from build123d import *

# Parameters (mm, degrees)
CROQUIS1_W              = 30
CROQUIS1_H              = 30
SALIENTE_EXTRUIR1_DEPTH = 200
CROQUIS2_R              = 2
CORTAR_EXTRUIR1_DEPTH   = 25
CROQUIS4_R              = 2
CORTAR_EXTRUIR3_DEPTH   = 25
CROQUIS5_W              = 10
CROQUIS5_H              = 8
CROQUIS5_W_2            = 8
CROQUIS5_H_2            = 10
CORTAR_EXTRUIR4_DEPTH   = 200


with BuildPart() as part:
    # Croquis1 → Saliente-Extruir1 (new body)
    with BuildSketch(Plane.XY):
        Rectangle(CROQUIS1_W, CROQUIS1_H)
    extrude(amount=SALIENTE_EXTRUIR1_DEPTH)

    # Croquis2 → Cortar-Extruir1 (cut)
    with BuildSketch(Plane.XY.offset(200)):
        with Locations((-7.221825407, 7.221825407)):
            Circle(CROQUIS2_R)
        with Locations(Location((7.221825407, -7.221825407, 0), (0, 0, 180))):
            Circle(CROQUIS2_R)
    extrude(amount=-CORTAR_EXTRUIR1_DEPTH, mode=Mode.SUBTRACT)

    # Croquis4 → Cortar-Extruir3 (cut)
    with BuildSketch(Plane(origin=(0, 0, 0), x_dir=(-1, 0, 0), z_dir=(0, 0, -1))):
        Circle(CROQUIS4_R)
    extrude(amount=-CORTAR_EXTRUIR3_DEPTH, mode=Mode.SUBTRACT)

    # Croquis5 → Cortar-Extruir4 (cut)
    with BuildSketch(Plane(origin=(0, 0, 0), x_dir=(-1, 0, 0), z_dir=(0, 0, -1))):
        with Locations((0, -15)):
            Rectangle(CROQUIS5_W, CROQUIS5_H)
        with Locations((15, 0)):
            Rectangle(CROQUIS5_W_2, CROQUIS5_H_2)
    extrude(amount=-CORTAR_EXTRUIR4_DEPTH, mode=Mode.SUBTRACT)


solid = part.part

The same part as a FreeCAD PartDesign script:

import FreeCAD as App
import Part
import Sketcher
from FreeCAD import Vector
Q = App.Units.Quantity

doc = App.newDocument("Part")
body = doc.addObject("PartDesign::Body", "Body")

# Sketch on XY plane
sketch1 = body.newObject("Sketcher::SketchObject", "Sketch")
sketch1.AttachmentSupport = (doc.getObject("XY_Plane"), [""])
sketch1.MapMode = "FlatFace"
sketch1.addGeometry(Part.LineSegment(Vector(-15, 15, 0), Vector(-15, -15, 0)), False)
sketch1.addGeometry(Part.LineSegment(Vector(-15, -15, 0), Vector(15, -15, 0)), False)
sketch1.addGeometry(Part.LineSegment(Vector(15, -15, 0), Vector(15, 15, 0)), False)
sketch1.addGeometry(Part.LineSegment(Vector(15, 15, 0), Vector(-15, 15, 0)), False)
sketch1.addConstraint(Sketcher.Constraint("Coincident", 0, 2, 1, 1))
sketch1.addConstraint(Sketcher.Constraint("Coincident", 1, 2, 2, 1))
sketch1.addConstraint(Sketcher.Constraint("Coincident", 2, 2, 3, 1))
sketch1.addConstraint(Sketcher.Constraint("Coincident", 3, 2, 0, 1))
sketch1.addConstraint(Sketcher.Constraint("Vertical", 0))
sketch1.addConstraint(Sketcher.Constraint("Horizontal", 1))
sketch1.addConstraint(Sketcher.Constraint("Vertical", 2))
sketch1.addConstraint(Sketcher.Constraint("Horizontal", 3))
sketch1.addConstraint(Sketcher.Constraint("Symmetric", 0, 2, 2, 2, -1, 1))
sketch1.addConstraint(Sketcher.Constraint("Equal", 3, 0))
sketch1.addConstraint(Sketcher.Constraint("DistanceX", 1, 1, 1, 2, Q("30 mm")))
pad1 = body.newObject("PartDesign::Pad", "Pad")
pad1.Profile = sketch1
pad1.Length = 200

# Sketch on XY plane
sketch2 = body.newObject("Sketcher::SketchObject", "Sketch001")
sketch2.AttachmentSupport = (doc.getObject("XY_Plane"), [""])
sketch2.MapMode = "FlatFace"
sketch2.AttachmentOffset = App.Placement(Vector(0, 0, 200), App.Rotation())
sketch2.addGeometry(Part.Circle(Vector(-7.2, 7.2, 0), Vector(0, 0, 1), 2), False)
sketch2.addGeometry(Part.Circle(Vector(7.2, -7.2, 0), Vector(0, 0, 1), 2), False)
sketch2.addConstraint(Sketcher.Constraint("Equal", 0, 1))
sketch2.addConstraint(Sketcher.Constraint("Symmetric", 0, 3, 1, 3, -1, 1))
sketch2.addConstraint(Sketcher.Constraint("Diameter", 0, Q("4 mm")))
sketch2.addConstraint(Sketcher.Constraint("DistanceX", 0, 3, 1, 3, Q("14.443651 mm")))
sketch2.addConstraint(Sketcher.Constraint("DistanceY", 1, 3, 0, 3, Q("14.443651 mm")))
pocket1 = body.newObject("PartDesign::Pocket", "Pocket")
pocket1.Profile = sketch2
pocket1.Length = 25

# Sketch on XY plane
sketch3 = body.newObject("Sketcher::SketchObject", "Sketch002")
sketch3.AttachmentSupport = (doc.getObject("XY_Plane"), [""])
sketch3.MapMode = "FlatFace"
sketch3.addGeometry(Part.Circle(Vector(0, 0, 0), Vector(0, 0, 1), 2), False)
sketch3.addConstraint(Sketcher.Constraint("Coincident", 0, 3, -1, 1))
sketch3.addConstraint(Sketcher.Constraint("Diameter", 0, Q("4 mm")))
pocket2 = body.newObject("PartDesign::Pocket", "Pocket001")
pocket2.Profile = sketch3
pocket2.Length = 25
pocket2.Reversed = True

# Sketch on XY plane
sketch4 = body.newObject("Sketcher::SketchObject", "Sketch003")
sketch4.AttachmentSupport = (doc.getObject("XY_Plane"), [""])
sketch4.MapMode = "FlatFace"
sketch4.addGeometry(Part.LineSegment(Vector(5, -11, 0), Vector(5, -19, 0)), False)
sketch4.addGeometry(Part.LineSegment(Vector(5, -19, 0), Vector(-5, -19, 0)), False)
sketch4.addGeometry(Part.LineSegment(Vector(-5, -19, 0), Vector(-5, -11, 0)), False)
sketch4.addGeometry(Part.LineSegment(Vector(-5, -11, 0), Vector(5, -11, 0)), False)
sketch4.addGeometry(Part.LineSegment(Vector(-11, 5, 0), Vector(-11, -5, 0)), False)
sketch4.addGeometry(Part.LineSegment(Vector(-11, -5, 0), Vector(-19, -5, 0)), False)
sketch4.addGeometry(Part.LineSegment(Vector(-19, -5, 0), Vector(-19, 5, 0)), False)
sketch4.addGeometry(Part.LineSegment(Vector(-19, 5, 0), Vector(-11, 5, 0)), False)
sketch4.addConstraint(Sketcher.Constraint("Coincident", 0, 2, 1, 1))
sketch4.addConstraint(Sketcher.Constraint("Coincident", 1, 2, 2, 1))
sketch4.addConstraint(Sketcher.Constraint("Coincident", 2, 2, 3, 1))
sketch4.addConstraint(Sketcher.Constraint("Coincident", 3, 2, 0, 1))
sketch4.addConstraint(Sketcher.Constraint("Coincident", 4, 2, 5, 1))
sketch4.addConstraint(Sketcher.Constraint("Coincident", 5, 2, 6, 1))
sketch4.addConstraint(Sketcher.Constraint("Coincident", 6, 2, 7, 1))
sketch4.addConstraint(Sketcher.Constraint("Coincident", 7, 2, 4, 1))
sketch4.addConstraint(Sketcher.Constraint("Vertical", 0))
sketch4.addConstraint(Sketcher.Constraint("Horizontal", 1))
sketch4.addConstraint(Sketcher.Constraint("Vertical", 2))
sketch4.addConstraint(Sketcher.Constraint("Horizontal", 3))
sketch4.addConstraint(Sketcher.Constraint("Vertical", 4))
sketch4.addConstraint(Sketcher.Constraint("Horizontal", 5))
sketch4.addConstraint(Sketcher.Constraint("Vertical", 6))
sketch4.addConstraint(Sketcher.Constraint("Horizontal", 7))
sketch4.addConstraint(Sketcher.Constraint("Equal", 7, 0))
sketch4.addConstraint(Sketcher.Constraint("Equal", 3, 4))
sketch4.addConstraint(Sketcher.Constraint("DistanceX", 1, 2, 1, 1, Q("10 mm")))
sketch4.addConstraint(Sketcher.Constraint("DistanceX", 5, 2, 5, 1, Q("8 mm")))
sketch4.addConstraint(Sketcher.Constraint("DistanceX", -1, 1, 0, 2, Q("5 mm")))
sketch4.addConstraint(Sketcher.Constraint("DistanceY", 0, 2, -1, 1, Q("19 mm")))
sketch4.addConstraint(Sketcher.Constraint("DistanceX", 4, 2, -1, 1, Q("11 mm")))
sketch4.addConstraint(Sketcher.Constraint("DistanceY", 4, 2, -1, 1, Q("5 mm")))
pocket3 = body.newObject("PartDesign::Pocket", "Pocket002")
pocket3.Profile = sketch4
pocket3.Length = 200
pocket3.Reversed = True

doc.recompute()
